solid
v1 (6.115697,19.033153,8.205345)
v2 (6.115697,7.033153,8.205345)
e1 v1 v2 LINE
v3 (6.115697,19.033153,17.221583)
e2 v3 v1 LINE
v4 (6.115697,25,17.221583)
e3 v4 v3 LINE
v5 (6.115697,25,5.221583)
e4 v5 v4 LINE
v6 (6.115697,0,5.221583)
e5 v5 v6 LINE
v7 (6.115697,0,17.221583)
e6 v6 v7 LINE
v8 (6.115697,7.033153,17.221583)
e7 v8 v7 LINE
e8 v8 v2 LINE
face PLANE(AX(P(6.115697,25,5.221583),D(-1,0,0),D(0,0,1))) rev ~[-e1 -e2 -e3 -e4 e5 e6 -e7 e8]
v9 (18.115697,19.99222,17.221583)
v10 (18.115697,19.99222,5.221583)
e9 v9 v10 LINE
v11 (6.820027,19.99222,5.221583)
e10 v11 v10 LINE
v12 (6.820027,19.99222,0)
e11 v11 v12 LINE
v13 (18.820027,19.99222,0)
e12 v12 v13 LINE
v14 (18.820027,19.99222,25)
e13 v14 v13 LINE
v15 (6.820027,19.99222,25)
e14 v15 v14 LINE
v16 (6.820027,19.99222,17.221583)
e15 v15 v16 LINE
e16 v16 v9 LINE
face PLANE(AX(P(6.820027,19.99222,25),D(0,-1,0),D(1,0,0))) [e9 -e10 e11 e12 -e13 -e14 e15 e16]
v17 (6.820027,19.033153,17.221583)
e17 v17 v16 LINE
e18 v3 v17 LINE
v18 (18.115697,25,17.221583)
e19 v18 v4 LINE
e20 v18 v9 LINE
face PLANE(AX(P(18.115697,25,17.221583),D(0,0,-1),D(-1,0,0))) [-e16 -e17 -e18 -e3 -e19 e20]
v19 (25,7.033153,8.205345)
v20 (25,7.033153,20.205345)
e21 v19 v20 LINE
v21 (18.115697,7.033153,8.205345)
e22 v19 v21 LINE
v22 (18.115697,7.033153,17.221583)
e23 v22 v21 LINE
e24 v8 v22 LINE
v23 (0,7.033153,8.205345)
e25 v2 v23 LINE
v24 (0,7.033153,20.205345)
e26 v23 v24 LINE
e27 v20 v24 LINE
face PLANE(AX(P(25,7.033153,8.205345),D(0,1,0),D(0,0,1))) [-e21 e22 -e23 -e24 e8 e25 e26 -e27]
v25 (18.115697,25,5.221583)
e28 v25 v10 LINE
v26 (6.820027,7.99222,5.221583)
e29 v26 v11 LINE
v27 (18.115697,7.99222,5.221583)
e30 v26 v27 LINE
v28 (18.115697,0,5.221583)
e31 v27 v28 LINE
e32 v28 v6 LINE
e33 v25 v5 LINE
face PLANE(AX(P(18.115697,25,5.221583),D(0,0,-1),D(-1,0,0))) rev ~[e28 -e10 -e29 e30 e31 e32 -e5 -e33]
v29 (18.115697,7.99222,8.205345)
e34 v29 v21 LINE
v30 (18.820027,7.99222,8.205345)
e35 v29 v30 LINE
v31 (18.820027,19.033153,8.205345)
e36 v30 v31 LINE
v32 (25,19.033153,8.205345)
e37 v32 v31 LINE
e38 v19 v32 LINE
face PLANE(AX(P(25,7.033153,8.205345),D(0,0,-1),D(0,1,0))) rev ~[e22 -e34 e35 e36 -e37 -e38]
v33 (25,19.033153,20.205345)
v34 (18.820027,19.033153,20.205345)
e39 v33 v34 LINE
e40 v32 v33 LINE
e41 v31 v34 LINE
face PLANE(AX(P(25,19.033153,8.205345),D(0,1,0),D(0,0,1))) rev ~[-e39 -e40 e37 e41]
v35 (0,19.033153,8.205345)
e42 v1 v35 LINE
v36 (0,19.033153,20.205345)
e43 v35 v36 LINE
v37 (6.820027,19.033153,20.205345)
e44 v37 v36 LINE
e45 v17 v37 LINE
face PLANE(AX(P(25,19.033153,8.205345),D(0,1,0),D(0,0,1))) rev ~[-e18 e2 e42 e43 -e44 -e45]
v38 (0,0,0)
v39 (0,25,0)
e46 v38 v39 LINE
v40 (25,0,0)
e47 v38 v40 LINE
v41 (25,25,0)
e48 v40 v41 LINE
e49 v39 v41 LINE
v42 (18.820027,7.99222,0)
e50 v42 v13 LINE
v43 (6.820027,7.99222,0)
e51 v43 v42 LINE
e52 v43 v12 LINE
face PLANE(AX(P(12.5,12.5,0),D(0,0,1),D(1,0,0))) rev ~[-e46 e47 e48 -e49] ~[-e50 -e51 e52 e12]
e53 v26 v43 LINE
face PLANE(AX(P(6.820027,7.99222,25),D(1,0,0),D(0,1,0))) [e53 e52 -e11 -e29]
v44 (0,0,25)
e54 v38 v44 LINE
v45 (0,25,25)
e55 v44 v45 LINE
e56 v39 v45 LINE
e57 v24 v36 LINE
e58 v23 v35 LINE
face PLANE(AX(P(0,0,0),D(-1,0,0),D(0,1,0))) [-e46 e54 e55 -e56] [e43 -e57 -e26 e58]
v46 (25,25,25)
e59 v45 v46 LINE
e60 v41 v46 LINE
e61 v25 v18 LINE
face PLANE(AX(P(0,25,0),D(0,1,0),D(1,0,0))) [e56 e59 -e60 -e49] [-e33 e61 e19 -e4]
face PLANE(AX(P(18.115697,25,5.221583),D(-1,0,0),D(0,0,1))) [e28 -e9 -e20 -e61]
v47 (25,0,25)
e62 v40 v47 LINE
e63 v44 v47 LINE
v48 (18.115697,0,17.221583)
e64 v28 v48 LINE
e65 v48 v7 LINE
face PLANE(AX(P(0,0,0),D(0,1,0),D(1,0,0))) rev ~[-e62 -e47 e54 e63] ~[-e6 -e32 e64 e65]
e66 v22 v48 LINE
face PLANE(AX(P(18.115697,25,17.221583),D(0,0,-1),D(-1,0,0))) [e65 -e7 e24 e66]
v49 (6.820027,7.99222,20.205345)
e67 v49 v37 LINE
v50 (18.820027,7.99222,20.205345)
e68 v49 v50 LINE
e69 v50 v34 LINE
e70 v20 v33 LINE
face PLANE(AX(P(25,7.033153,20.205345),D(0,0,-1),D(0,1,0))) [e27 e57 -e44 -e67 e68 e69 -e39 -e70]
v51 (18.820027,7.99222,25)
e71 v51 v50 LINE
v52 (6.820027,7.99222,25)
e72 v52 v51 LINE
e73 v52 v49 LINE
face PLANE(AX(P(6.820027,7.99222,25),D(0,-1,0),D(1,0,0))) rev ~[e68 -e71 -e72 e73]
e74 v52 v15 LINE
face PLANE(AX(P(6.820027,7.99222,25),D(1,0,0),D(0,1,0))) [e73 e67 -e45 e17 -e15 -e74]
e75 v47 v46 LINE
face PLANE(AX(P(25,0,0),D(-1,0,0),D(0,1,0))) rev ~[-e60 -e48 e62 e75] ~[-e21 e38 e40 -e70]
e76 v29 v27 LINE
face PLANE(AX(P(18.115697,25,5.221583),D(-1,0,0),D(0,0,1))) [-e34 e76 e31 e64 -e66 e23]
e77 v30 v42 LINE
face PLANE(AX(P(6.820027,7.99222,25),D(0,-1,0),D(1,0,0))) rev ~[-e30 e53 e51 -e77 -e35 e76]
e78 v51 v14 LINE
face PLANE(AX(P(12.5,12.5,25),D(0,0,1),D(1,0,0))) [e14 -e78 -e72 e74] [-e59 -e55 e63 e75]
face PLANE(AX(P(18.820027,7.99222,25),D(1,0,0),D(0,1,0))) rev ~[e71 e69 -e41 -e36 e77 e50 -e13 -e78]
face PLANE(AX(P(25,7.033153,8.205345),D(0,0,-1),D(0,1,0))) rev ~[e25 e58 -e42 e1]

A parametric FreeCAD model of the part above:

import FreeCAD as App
import Part
import Sketcher
Q = App.Units.Quantity


def add_polygon(sketch, points):
    """Adds a closed chain of lines whose ends are joined by coincident constraints."""
    first, n = sketch.GeometryCount, len(points)
    for a, b in zip(points, points[1:] + points[:1]):
        sketch.addGeometry(Part.LineSegment(App.Vector(*a, 0), App.Vector(*b, 0)), False)
    for i in range(n):
        sketch.addConstraint(Sketcher.Constraint("Coincident", first + i, 2, first + (i + 1) % n, 1))

doc = App.newDocument("Part")
params = doc.addObject("Spreadsheet::Sheet", "Params")
for row, (alias, value) in enumerate([
    ("sketch1_width", "25 mm"),
    ("pad1_length", "25 mm"),
    ("sketch2_width", "12 mm"),
    ("pocket1_length", "25 mm"),
    ("sketch3_width", "12 mm"),
    ("pocket2_length", "25 mm"),
    ("sketch4_width", "12 mm"),
    ("pocket3_length", "25 mm"),
], start=1):
    params.set(f"A{row}", alias)
    params.set(f"B{row}", "=" + value)
    params.setAlias(f"B{row}", alias)

body = doc.addObject("PartDesign::Body", "Body")

# Sketch on XY plane
sketch1 = body.newObject("Sketcher::SketchObject", "Sketch")
sketch1.AttachmentSupport = (doc.getObject("XY_Plane"), [""])
sketch1.MapMode = "FlatFace"
add_polygon(sketch1, [(0, 25), (0, 0), (25, 0), (25, 25)])  # lines 0-3
sketch1.addConstraint([
    Sketcher.Constraint("Vertical", 0),
    Sketcher.Constraint("Horizontal", 1),
    Sketcher.Constraint("Vertical", 2),
    Sketcher.Constraint("Horizontal", 3),
    Sketcher.Constraint("Coincident", 0, 2, -1, 1),
    Sketcher.Constraint("Equal", 3, 0),
    Sketcher.Constraint("DistanceX", 1, 1, 1, 2, Q("25 mm")),
])
sketch1.setExpression("Constraints[10]", "Params.sketch1_width")
pad1 = body.newObject("PartDesign::Pad", "Pad")
pad1.Profile = sketch1
pad1.setExpression("Length", "Params.pad1_length")

# Sketch on XY plane
sketch2 = body.newObject("Sketcher::SketchObject", "Sketch001")
sketch2.AttachmentSupport = (doc.getObject("XY_Plane"), [""])
sketch2.MapMode = "FlatFace"
sketch2.AttachmentOffset = App.Placement(App.Vector(0, 0, 25), App.Rotation())
add_polygon(sketch2, [(7, 20), (7, 8), (19, 8), (19, 20)])  # lines 0-3
sketch2.addConstraint([
    Sketcher.Constraint("Vertical", 0),
    Sketcher.Constraint("Horizontal", 1),
    Sketcher.Constraint("Vertical", 2),
    Sketcher.Constraint("Horizontal", 3),
    Sketcher.Constraint("Equal", 3, 0),
    Sketcher.Constraint("DistanceX", 1, 1, 1, 2, Q("12 mm")),
    Sketcher.Constraint("DistanceY", -1, 1, 0, 2, Q("7.99222 mm")),
    Sketcher.Constraint("DistanceX", -1, 1, 0, 2, Q("6.820027 mm")),
])
sketch2.setExpression("Constraints[9]", "Params.sketch2_width")
pocket1 = body.newObject("PartDesign::Pocket", "Pocket")
pocket1.Profile = sketch2
pocket1.setExpression("Length", "Params.pocket1_length")

# Sketch on XZ plane
sketch3 = body.newObject("Sketcher::SketchObject", "Sketch002")
sketch3.AttachmentSupport = (doc.getObject("XZ_Plane"), [""])
sketch3.MapMode = "FlatFace"
sketch3.AttachmentOffset = App.Placement(App.Vector(0, 0, -25), App.Rotation())
add_polygon(sketch3, [(18, 17), (18, 5), (6, 5), (6, 17)])  # lines 0-3
sketch3.addConstraint([
    Sketcher.Constraint("Vertical", 0),
    Sketcher.Constraint("Horizontal", 1),
    Sketcher.Constraint("Vertical", 2),
    Sketcher.Constraint("Horizontal", 3),
    Sketcher.Constraint("Equal", 3, 0),
    Sketcher.Constraint("DistanceX", 1, 2, 1, 1, Q("12 mm")),
    Sketcher.Constraint("DistanceX", -1, 1, 0, 2, Q("18.115697 mm")),
    Sketcher.Constraint("DistanceY", -1, 1, 0, 2, Q("5.221583 mm")),
])
sketch3.setExpression("Constraints[9]", "Params.sketch3_width")
pocket2 = body.newObject("PartDesign::Pocket", "Pocket001")
pocket2.Profile = sketch3
pocket2.setExpression("Length", "Params.pocket2_length")
pocket2.Reversed = True

# Sketch on YZ plane
sketch4 = body.newObject("Sketcher::SketchObject", "Sketch003")
sketch4.AttachmentSupport = (doc.getObject("YZ_Plane"), [""])
sketch4.MapMode = "FlatFace"
sketch4.AttachmentOffset = App.Placement(App.Vector(0, 0, 25), App.Rotation())
add_polygon(sketch4, [(7, 20), (7, 8), (19, 8), (19, 20)])  # lines 0-3
sketch4.addConstraint([
    Sketcher.Constraint("Vertical", 0),
    Sketcher.Constraint("Horizontal", 1),
    Sketcher.Constraint("Vertical", 2),
    Sketcher.Constraint("Horizontal", 3),
    Sketcher.Constraint("Equal", 3, 0),
    Sketcher.Constraint("DistanceX", 1, 1, 1, 2, Q("12 mm")),
    Sketcher.Constraint("DistanceX", -1, 1, 0, 2, Q("7.033153 mm")),
    Sketcher.Constraint("DistanceY", -1, 1, 0, 2, Q("8.205345 mm")),
])
sketch4.setExpression("Constraints[9]", "Params.sketch4_width")
pocket3 = body.newObject("PartDesign::Pocket", "Pocket002")
pocket3.Profile = sketch4
pocket3.setExpression("Length", "Params.pocket3_length")

doc.recompute()
